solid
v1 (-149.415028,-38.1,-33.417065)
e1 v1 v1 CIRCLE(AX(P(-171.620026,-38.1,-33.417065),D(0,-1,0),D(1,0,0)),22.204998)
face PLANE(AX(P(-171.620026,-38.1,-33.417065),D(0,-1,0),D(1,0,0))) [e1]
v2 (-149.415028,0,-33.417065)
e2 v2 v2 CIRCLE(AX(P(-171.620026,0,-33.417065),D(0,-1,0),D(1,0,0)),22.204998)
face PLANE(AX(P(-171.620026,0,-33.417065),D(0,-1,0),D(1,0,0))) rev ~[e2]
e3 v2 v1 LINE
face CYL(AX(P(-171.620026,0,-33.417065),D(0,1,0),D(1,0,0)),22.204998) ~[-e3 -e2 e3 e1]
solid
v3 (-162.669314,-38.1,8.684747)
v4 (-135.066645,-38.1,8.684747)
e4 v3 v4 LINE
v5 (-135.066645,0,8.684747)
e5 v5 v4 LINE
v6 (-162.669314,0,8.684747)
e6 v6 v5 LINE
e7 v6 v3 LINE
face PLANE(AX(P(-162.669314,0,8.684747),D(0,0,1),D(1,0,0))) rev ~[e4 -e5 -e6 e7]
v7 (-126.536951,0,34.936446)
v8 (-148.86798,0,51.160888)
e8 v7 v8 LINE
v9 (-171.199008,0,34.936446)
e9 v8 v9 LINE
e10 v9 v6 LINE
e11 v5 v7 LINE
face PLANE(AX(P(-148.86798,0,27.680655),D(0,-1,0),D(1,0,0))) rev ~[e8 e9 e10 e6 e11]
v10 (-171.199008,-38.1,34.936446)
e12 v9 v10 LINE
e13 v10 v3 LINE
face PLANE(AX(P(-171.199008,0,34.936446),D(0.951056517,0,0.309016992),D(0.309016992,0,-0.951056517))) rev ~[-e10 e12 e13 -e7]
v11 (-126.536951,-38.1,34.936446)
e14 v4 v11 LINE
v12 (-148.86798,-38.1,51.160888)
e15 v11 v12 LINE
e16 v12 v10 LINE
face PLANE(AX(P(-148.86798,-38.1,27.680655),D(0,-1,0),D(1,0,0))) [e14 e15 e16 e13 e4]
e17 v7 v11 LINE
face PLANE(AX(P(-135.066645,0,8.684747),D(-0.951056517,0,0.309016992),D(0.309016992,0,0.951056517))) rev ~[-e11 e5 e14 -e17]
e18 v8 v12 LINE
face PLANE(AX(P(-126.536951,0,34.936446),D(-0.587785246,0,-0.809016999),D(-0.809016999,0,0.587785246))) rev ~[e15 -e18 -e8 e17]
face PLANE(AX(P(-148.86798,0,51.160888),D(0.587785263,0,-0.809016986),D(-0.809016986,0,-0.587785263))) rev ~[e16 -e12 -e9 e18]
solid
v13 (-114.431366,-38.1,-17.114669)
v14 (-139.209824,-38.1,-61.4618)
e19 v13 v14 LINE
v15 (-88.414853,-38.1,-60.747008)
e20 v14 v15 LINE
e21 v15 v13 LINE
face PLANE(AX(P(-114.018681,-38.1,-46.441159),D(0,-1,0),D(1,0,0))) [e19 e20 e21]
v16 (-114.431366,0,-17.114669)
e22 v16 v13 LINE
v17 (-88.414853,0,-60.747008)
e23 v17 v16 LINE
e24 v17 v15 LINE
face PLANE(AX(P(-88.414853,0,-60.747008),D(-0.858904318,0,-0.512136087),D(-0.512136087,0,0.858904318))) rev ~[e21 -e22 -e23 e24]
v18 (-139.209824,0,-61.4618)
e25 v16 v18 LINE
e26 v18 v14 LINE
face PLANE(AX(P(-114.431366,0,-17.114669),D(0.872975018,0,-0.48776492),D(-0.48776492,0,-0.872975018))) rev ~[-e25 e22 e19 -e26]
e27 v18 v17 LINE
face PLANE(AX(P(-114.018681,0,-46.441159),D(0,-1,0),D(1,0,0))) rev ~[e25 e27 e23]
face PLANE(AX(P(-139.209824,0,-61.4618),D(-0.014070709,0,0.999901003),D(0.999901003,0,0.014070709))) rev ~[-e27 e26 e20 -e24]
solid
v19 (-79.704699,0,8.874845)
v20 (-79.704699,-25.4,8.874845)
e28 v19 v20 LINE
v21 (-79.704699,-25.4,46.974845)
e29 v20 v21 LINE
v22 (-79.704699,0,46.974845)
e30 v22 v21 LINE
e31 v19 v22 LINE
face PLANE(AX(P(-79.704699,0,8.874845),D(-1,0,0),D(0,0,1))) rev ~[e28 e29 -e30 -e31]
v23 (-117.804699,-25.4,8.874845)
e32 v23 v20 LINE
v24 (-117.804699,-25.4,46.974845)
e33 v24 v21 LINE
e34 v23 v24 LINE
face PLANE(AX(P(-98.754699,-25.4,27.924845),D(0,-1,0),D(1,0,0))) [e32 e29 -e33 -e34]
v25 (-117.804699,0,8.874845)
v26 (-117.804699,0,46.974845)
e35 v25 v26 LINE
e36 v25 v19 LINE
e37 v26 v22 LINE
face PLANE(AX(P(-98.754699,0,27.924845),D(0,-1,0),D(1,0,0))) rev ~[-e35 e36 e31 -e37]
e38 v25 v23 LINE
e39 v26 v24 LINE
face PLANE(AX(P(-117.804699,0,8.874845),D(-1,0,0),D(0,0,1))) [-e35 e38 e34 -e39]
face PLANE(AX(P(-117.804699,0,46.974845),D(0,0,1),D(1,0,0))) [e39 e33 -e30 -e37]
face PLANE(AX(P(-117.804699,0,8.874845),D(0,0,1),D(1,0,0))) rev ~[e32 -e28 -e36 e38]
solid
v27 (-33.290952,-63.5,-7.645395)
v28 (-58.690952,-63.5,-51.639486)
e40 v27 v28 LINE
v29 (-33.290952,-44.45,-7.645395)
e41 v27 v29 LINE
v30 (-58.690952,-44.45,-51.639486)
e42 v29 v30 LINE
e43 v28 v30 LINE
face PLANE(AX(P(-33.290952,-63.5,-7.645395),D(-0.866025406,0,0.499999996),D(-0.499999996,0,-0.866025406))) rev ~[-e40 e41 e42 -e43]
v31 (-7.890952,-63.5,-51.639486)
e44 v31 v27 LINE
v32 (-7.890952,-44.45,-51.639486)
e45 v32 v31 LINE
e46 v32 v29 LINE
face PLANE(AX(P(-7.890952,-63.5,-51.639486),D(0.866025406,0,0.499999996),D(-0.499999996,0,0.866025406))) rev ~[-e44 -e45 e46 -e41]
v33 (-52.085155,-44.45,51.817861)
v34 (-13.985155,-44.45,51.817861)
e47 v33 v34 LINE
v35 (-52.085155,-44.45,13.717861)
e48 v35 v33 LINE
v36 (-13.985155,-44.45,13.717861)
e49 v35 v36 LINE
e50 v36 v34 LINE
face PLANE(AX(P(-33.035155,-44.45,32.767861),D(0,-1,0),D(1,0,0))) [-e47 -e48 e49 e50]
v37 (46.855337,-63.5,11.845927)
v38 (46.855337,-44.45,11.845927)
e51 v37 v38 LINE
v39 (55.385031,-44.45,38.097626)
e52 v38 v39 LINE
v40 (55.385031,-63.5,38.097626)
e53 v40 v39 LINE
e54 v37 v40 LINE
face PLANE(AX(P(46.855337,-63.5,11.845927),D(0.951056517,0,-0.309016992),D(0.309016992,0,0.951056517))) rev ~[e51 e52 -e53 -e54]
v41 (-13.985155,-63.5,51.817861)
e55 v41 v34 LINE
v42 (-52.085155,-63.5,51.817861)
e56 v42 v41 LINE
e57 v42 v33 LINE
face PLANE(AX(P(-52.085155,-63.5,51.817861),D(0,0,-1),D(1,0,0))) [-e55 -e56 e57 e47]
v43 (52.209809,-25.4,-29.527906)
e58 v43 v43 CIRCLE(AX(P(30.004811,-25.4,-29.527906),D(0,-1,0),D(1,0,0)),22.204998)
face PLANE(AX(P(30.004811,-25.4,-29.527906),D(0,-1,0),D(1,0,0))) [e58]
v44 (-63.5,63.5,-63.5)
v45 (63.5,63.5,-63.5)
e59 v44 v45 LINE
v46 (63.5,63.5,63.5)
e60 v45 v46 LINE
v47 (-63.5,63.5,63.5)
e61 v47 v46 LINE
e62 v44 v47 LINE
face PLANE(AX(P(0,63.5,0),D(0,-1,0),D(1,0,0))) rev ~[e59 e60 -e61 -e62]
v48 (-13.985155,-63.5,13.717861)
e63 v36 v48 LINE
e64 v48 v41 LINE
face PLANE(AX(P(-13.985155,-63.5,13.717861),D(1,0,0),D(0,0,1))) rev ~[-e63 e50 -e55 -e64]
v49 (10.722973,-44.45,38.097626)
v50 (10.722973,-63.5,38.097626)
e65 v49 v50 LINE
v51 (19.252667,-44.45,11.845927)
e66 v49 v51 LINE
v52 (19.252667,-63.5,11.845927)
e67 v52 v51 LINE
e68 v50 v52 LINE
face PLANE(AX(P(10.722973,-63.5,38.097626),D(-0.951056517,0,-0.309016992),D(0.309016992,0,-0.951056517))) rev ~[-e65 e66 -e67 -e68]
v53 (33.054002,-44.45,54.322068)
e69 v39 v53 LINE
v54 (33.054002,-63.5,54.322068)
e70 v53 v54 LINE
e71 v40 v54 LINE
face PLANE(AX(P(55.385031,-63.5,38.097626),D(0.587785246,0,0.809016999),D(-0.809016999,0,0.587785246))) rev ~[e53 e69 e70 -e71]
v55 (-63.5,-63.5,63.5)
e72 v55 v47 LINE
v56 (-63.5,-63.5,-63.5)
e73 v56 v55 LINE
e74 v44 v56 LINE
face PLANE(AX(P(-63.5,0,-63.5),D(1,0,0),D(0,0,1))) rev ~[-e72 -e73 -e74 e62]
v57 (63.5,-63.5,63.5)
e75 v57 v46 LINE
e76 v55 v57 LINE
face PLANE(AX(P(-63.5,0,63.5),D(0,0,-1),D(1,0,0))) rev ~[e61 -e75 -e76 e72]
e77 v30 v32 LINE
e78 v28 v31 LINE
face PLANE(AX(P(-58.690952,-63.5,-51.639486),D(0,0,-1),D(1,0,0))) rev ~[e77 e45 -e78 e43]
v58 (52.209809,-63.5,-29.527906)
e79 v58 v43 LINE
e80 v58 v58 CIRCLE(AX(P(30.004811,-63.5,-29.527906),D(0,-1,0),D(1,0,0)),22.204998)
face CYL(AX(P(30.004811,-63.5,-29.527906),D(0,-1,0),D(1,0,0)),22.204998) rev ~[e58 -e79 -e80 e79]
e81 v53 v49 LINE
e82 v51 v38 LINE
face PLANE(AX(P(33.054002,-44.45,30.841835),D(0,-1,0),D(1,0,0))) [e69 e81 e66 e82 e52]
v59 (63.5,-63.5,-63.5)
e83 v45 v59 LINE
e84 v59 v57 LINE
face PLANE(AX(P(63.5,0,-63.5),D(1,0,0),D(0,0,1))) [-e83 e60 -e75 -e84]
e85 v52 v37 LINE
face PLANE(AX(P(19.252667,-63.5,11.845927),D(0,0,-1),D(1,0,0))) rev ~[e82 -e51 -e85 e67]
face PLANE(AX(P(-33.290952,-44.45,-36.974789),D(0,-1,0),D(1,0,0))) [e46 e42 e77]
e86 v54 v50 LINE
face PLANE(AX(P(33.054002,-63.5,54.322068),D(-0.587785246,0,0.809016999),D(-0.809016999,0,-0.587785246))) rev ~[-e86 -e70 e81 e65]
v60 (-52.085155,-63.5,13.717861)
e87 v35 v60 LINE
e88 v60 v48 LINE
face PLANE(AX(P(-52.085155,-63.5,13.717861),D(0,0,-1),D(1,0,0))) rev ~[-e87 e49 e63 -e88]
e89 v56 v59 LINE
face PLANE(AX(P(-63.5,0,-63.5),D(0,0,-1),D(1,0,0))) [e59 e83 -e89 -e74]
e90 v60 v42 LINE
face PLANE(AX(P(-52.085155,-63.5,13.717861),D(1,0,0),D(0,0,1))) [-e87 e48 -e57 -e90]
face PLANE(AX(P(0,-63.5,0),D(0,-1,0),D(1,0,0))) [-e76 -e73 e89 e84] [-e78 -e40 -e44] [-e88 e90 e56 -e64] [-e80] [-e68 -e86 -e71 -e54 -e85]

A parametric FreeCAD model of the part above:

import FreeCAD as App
import Part
import Sketcher
from FreeCAD import Vector
Q = App.Units.Quantity

doc = App.newDocument("Part")
params = doc.addObject("Spreadsheet::Sheet", "Params")
for row, (alias, value) in enumerate([
    ("sketch1_width", "5 in"),
    ("pad1_length", "5 in"),
    ("sketch2_width", "1.5 in"),
    ("pocket1_length", "1.5 in"),
    ("pocket2_length", "1.5 in"),
    ("sketch4_width", "2 in"),
    ("sketch4_length", "2 in"),
    ("pocket3_length", "1.5 in"),
    ("pocket4_length", "1.5 in"),
    ("sketch6_width", "1.5 in"),
    ("pad2_length", "1 in"),
    ("sketch7_length", "2 in"),
    ("pad3_length", "1.5 in"),
    ("pad4_length", "1.5 in"),
    ("pad5_length", "1.5 in"),
], start=1):
    params.set(f"A{row}", alias)
    params.set(f"B{row}", "=" + value)
    params.setAlias(f"B{row}", alias)

body = doc.addObject("PartDesign::Body", "Body")

# Sketch on XZ plane
sketch1 = body.newObject("Sketcher::SketchObject", "Sketch")
sketch1.AttachmentSupport = (doc.getObject("XZ_Plane"), [""])
sketch1.MapMode = "FlatFace"
sketch1.addGeometry(Part.LineSegment(Vector(-64, 64, 0), Vector(-64, -64, 0)), False)
sketch1.addGeometry(Part.LineSegment(Vector(-64, -64, 0), Vector(64, -64, 0)), False)
sketch1.addGeometry(Part.LineSegment(Vector(64, -64, 0), Vector(64, 64, 0)), False)
sketch1.addGeometry(Part.LineSegment(Vector(64, 64, 0), Vector(-64, 64, 0)), False)
sketch1.addConstraint(Sketcher.Constraint("Coincident", 0, 2, 1, 1))
sketch1.addConstraint(Sketcher.Constraint("Coincident", 1, 2, 2, 1))
sketch1.addConstraint(Sketcher.Constraint("Coincident", 2, 2, 3, 1))
sketch1.addConstraint(Sketcher.Constraint("Coincident", 3, 2, 0, 1))
sketch1.addConstraint(Sketcher.Constraint("Vertical", 0))
sketch1.addConstraint(Sketcher.Constraint("Horizontal", 1))
sketch1.addConstraint(Sketcher.Constraint("Vertical", 2))
sketch1.addConstraint(Sketcher.Constraint("Horizontal", 3))
sketch1.addConstraint(Sketcher.Constraint("Symmetric", 0, 2, 2, 2, -1, 1))
sketch1.addConstraint(Sketcher.Constraint("Equal", 3, 0))
sketch1.addConstraint(Sketcher.Constraint("DistanceX", 1, 1, 1, 2, Q("5 in")))
sketch1.setExpression("Constraints[10]", "Params.sketch1_width")
pad1 = body.newObject("PartDesign::Pad", "Pad")
pad1.Profile = sketch1
pad1.setExpression("Length", "Params.pad1_length")
pad1.Midplane = True

# Sketch on XZ plane
sketch2 = body.newObject("Sketcher::SketchObject", "Sketch001")
sketch2.AttachmentSupport = (doc.getObject("XZ_Plane"), [""])
sketch2.MapMode = "FlatFace"
sketch2.AttachmentOffset = App.Placement(Vector(0, 0, 2.5 * 25.4), App.Rotation())
sketch2.addGeometry(Part.LineSegment(Vector(-52, 52, 0), Vector(-52, 14, 0)), False)
sketch2.addGeometry(Part.LineSegment(Vector(-52, 14, 0), Vector(-14, 14, 0)), False)
sketch2.addGeometry(Part.LineSegment(Vector(-14, 14, 0), Vector(-14, 52, 0)), False)
sketch2.addGeometry(Part.LineSegment(Vector(-14, 52, 0), Vector(-52, 52, 0)), False)
sketch2.addConstraint(Sketcher.Constraint("Coincident", 0, 2, 1, 1))
sketch2.addConstraint(Sketcher.Constraint("Coincident", 1, 2, 2, 1))
sketch2.addConstraint(Sketcher.Constraint("Coincident", 2, 2, 3, 1))
sketch2.addConstraint(Sketcher.Constraint("Coincident", 3, 2, 0, 1))
sketch2.addConstraint(Sketcher.Constraint("Vertical", 0))
sketch2.addConstraint(Sketcher.Constraint("Horizontal", 1))
sketch2.addConstraint(Sketcher.Constraint("Vertical", 2))
sketch2.addConstraint(Sketcher.Constraint("Horizontal", 3))
sketch2.addConstraint(Sketcher.Constraint("Equal", 3, 0))
sketch2.addConstraint(Sketcher.Constraint("DistanceX", 1, 1, 1, 2, Q("1.5 in")))
sketch2.addConstraint(Sketcher.Constraint("DistanceY", -1, 1, 0, 2, Q("13.717861 mm")))
sketch2.addConstraint(Sketcher.Constraint("DistanceX", 0, 2, -1, 1, Q("52.085155 mm")))
sketch2.setExpression("Constraints[9]", "Params.sketch2_width")
pocket1 = body.newObject("PartDesign::Pocket", "Pocket")
pocket1.Profile = sketch2
pocket1.setExpression("Length", "Params.pocket1_length")
pocket1.Midplane = True

# Sketch on XZ plane
sketch3 = body.newObject("Sketcher::SketchObject", "Sketch002")
sketch3.AttachmentSupport = (doc.getObject("XZ_Plane"), [""])
sketch3.MapMode = "FlatFace"
sketch3.AttachmentOffset = App.Placement(Vector(0, 0, 2.5 * 25.4), App.Rotation())
sketch3.addGeometry(Part.LineSegment(Vector(55, 38, 0), Vector(33, 54, 0)), False)
sketch3.addGeometry(Part.LineSegment(Vector(33, 54, 0), Vector(11, 38, 0)), False)
sketch3.addGeometry(Part.LineSegment(Vector(11, 38, 0), Vector(19, 12, 0)), False)
sketch3.addGeometry(Part.LineSegment(Vector(19, 12, 0), Vector(47, 12, 0)), False)
sketch3.addGeometry(Part.LineSegment(Vector(47, 12, 0), Vector(55, 38, 0)), False)
sketch3.addConstraint(Sketcher.Constraint("Coincident", 0, 2, 1, 1))
sketch3.addConstraint(Sketcher.Constraint("Coincident", 1, 2, 2, 1))
sketch3.addConstraint(Sketcher.Constraint("Coincident", 2, 2, 3, 1))
sketch3.addConstraint(Sketcher.Constraint("Coincident", 3, 2, 4, 1))
sketch3.addConstraint(Sketcher.Constraint("Coincident", 4, 2, 0, 1))
sketch3.addConstraint(Sketcher.Constraint("Horizontal", 3))
sketch3.addConstraint(Sketcher.Constraint("Horizontal", 1, 2, 4, 2))
sketch3.addConstraint(Sketcher.Constraint("Equal", 0, 1))
sketch3.addConstraint(Sketcher.Constraint("Equal", 1, 2))
sketch3.addConstraint(Sketcher.Constraint("Equal", 2, 4))
sketch3.addConstraint(Sketcher.Constraint("Angle", 0, Q("144 deg")))
sketch3.addConstraint(Sketcher.Constraint("Angle", 2, Q("-72 deg")))
sketch3.addConstraint(Sketcher.Constraint("DistanceX", 3, 1, 3, 2, Q("27.60267 mm")))
sketch3.addConstraint(Sketcher.Constraint("DistanceX", -1, 1, 0, 2, Q("33.054002 mm")))
sketch3.addConstraint(Sketcher.Constraint("DistanceY", -1, 1, 0, 2, Q("54.322068 mm")))
pocket2 = body.newObject("PartDesign::Pocket", "Pocket001")
pocket2.Profile = sketch3
pocket2.setExpression("Length", "Params.pocket2_length")
pocket2.Midplane = True

# Sketch on XZ plane
sketch4 = body.newObject("Sketcher::SketchObject", "Sketch003")
sketch4.AttachmentSupport = (doc.getObject("XZ_Plane"), [""])
sketch4.MapMode = "FlatFace"
sketch4.AttachmentOffset = App.Placement(Vector(0, 0, 2.5 * 25.4), App.Rotation())
sketch4.addGeometry(Part.LineSegment(Vector(-59, -52, 0), Vector(-8, -52, 0)), False)
sketch4.addGeometry(Part.LineSegment(Vector(-8, -52, 0), Vector(-33, -8, 0)), False)
sketch4.addGeometry(Part.LineSegment(Vector(-33, -8, 0), Vector(-59, -52, 0)), False)
sketch4.addConstraint(Sketcher.Constraint("Coincident", 0, 2, 1, 1))
sketch4.addConstraint(Sketcher.Constraint("Coincident", 1, 2, 2, 1))
sketch4.addConstraint(Sketcher.Constraint("Coincident", 2, 2, 0, 1))
sketch4.addConstraint(Sketcher.Constraint("Horizontal", 0))
sketch4.addConstraint(Sketcher.Constraint("Equal", 1, 2))
sketch4.addConstraint(Sketcher.Constraint("DistanceX", 0, 1, 0, 2, Q("2 in")))
sketch4.addConstraint(Sketcher.Constraint("Distance", 1, Q("2 in")))
sketch4.addConstraint(Sketcher.Constraint("DistanceY", 1, 2, -1, 1, Q("0.3009998 in")))
sketch4.addConstraint(Sketcher.Constraint("DistanceX", 1, 2, -1, 1, Q("33.290952 mm")))
sketch4.setExpression("Constraints[5]", "Params.sketch4_width")
sketch4.setExpression("Constraints[6]", "Params.sketch4_length")
pocket3 = body.newObject("PartDesign::Pocket", "Pocket002")
pocket3.Profile = sketch4
pocket3.setExpression("Length", "Params.pocket3_length")
pocket3.Midplane = True

# Sketch on XZ plane
sketch5 = body.newObject("Sketcher::SketchObject", "Sketch004")
sketch5.AttachmentSupport = (doc.getObject("XZ_Plane"), [""])
sketch5.MapMode = "FlatFace"
sketch5.AttachmentOffset = App.Placement(Vector(0, 0, 2.5 * 25.4), App.Rotation())
sketch5.addGeometry(Part.Circle(Vector(30, -30, 0), Vector(0, 0, 1), 22), False)
sketch5.addConstraint(Sketcher.Constraint("Diameter", 0, Q("44.409996 mm")))
sketch5.addConstraint(Sketcher.Constraint("DistanceX", -1, 1, 0, 3, Q("30.004811 mm")))
sketch5.addConstraint(Sketcher.Constraint("DistanceY", 0, 3, -1, 1, Q("29.527906 mm")))
pocket4 = body.newObject("PartDesign::Pocket", "Pocket003")
pocket4.Profile = sketch5
pocket4.setExpression("Length", "Params.pocket4_length")
body2 = doc.addObject("PartDesign::Body", "Body001")

# Sketch on XZ plane
sketch6 = body2.newObject("Sketcher::SketchObject", "Sketch005")
sketch6.AttachmentSupport = (doc.getObject("XZ_Plane001"), [""])
sketch6.MapMode = "FlatFace"
sketch6.addGeometry(Part.LineSegment(Vector(-118, 47, 0), Vector(-118, 9, 0)), False)
sketch6.addGeometry(Part.LineSegment(Vector(-118, 9, 0), Vector(-80, 9, 0)), False)
sketch6.addGeometry(Part.LineSegment(Vector(-80, 9, 0), Vector(-80, 47, 0)), False)
sketch6.addGeometry(Part.LineSegment(Vector(-80, 47, 0), Vector(-118, 47, 0)), False)
sketch6.addConstraint(Sketcher.Constraint("Coincident", 0, 2, 1, 1))
sketch6.addConstraint(Sketcher.Constraint("Coincident", 1, 2, 2, 1))
sketch6.addConstraint(Sketcher.Constraint("Coincident", 2, 2, 3, 1))
sketch6.addConstraint(Sketcher.Constraint("Coincident", 3, 2, 0, 1))
sketch6.addConstraint(Sketcher.Constraint("Vertical", 0))
sketch6.addConstraint(Sketcher.Constraint("Horizontal", 1))
sketch6.addConstraint(Sketcher.Constraint("Vertical", 2))
sketch6.addConstraint(Sketcher.Constraint("Horizontal", 3))
sketch6.addConstraint(Sketcher.Constraint("Equal", 3, 0))
sketch6.addConstraint(Sketcher.Constraint("DistanceX", 1, 1, 1, 2, Q("1.5 in")))
sketch6.addConstraint(Sketcher.Constraint("DistanceX", 0, 2, -1, 1, Q("117.804699 mm")))
sketch6.addConstraint(Sketcher.Constraint("DistanceY", -1, 1, 0, 2, Q("8.874845 mm")))
sketch6.setExpression("Constraints[9]", "Params.sketch6_width")
pad2 = body2.newObject("PartDesign::Pad", "Pad001")
pad2.Profile = sketch6
pad2.setExpression("Length", "Params.pad2_length")
body3 = doc.addObject("PartDesign::Body", "Body002")

# Sketch on XZ plane
sketch7 = body3.newObject("Sketcher::SketchObject", "Sketch006")
sketch7.AttachmentSupport = (doc.getObject("XZ_Plane002"), [""])
sketch7.MapMode = "FlatFace"
sketch7.addGeometry(Part.LineSegment(Vector(-88, -61, 0), Vector(-114, -17, 0)), False)
sketch7.addGeometry(Part.LineSegment(Vector(-114, -17, 0), Vector(-139, -61, 0)), False)
sketch7.addGeometry(Part.LineSegment(Vector(-139, -61, 0), Vector(-88, -61, 0)), False)
sketch7.addConstraint(Sketcher.Constraint("Coincident", 0, 2, 1, 1))
sketch7.addConstraint(Sketcher.Constraint("Coincident", 1, 2, 2, 1))
sketch7.addConstraint(Sketcher.Constraint("Coincident", 2, 2, 0, 1))
sketch7.addConstraint(Sketcher.Constraint("Equal", 0, 1))
sketch7.addConstraint(Sketcher.Constraint("Equal", 1, 2))
sketch7.addConstraint(Sketcher.Constraint("Distance", 0, Q("2 in")))
sketch7.addConstraint(Sketcher.Constraint("DistanceY", 1, 2, -1, 1, Q("61.4618 mm")))
sketch7.addConstraint(Sketcher.Constraint("DistanceY", 0, 2, -1, 1, Q("17.114669 mm")))
sketch7.addConstraint(Sketcher.Constraint("DistanceX", 0, 2, -1, 1, Q("114.431366 mm")))
sketch7.setExpression("Constraints[5]", "Params.sketch7_length")
pad3 = body3.newObject("PartDesign::Pad", "Pad002")
pad3.Profile = sketch7
pad3.setExpression("Length", "Params.pad3_length")
body4 = doc.addObject("PartDesign::Body", "Body003")

# Sketch on XZ plane
sketch8 = body4.newObject("Sketcher::SketchObject", "Sketch007")
sketch8.AttachmentSupport = (doc.getObject("XZ_Plane003"), [""])
sketch8.MapMode = "FlatFace"
sketch8.addGeometry(Part.LineSegment(Vector(-135, 9, 0), Vector(-127, 35, 0)), False)
sketch8.addGeometry(Part.LineSegment(Vector(-127, 35, 0), Vector(-149, 51, 0)), False)
sketch8.addGeometry(Part.LineSegment(Vector(-149, 51, 0), Vector(-171, 35, 0)), False)
sketch8.addGeometry(Part.LineSegment(Vector(-171, 35, 0), Vector(-163, 9, 0)), False)
sketch8.addGeometry(Part.LineSegment(Vector(-163, 9, 0), Vector(-135, 9, 0)), False)
sketch8.addConstraint(Sketcher.Constraint("Coincident", 0, 2, 1, 1))
sketch8.addConstraint(Sketcher.Constraint("Coincident", 1, 2, 2, 1))
sketch8.addConstraint(Sketcher.Constraint("Coincident", 2, 2, 3, 1))
sketch8.addConstraint(Sketcher.Constraint("Coincident", 3, 2, 4, 1))
sketch8.addConstraint(Sketcher.Constraint("Coincident", 4, 2, 0, 1))
sketch8.addConstraint(Sketcher.Constraint("Horizontal", 4))
sketch8.addConstraint(Sketcher.Constraint("Horizontal", 0, 2, 2, 2))
sketch8.addConstraint(Sketcher.Constraint("Equal", 0, 1))
sketch8.addConstraint(Sketcher.Constraint("Equal", 1, 2))
sketch8.addConstraint(Sketcher.Constraint("Equal", 2, 3))
sketch8.addConstraint(Sketcher.Constraint("Angle", 0, Q("72 deg")))
sketch8.addConstraint(Sketcher.Constraint("Angle", 1, Q("144 deg")))
sketch8.addConstraint(Sketcher.Constraint("DistanceX", 4, 1, 4, 2, Q("27.602669 mm")))
sketch8.addConstraint(Sketcher.Constraint("DistanceX", 0, 2, -1, 1, Q("126.536951 mm")))
sketch8.addConstraint(Sketcher.Constraint("DistanceY", -1, 1, 0, 2, Q("34.936446 mm")))
pad4 = body4.newObject("PartDesign::Pad", "Pad003")
pad4.Profile = sketch8
pad4.setExpression("Length", "Params.pad4_length")
body5 = doc.addObject("PartDesign::Body", "Body004")

# Sketch on XZ plane
sketch9 = body5.newObject("Sketcher::SketchObject", "Sketch008")
sketch9.AttachmentSupport = (doc.getObject("XZ_Plane004"), [""])
sketch9.MapMode = "FlatFace"
sketch9.addGeometry(Part.Circle(Vector(-172, -33, 0), Vector(0, 0, 1), 22), False)
sketch9.addConstraint(Sketcher.Constraint("Diameter", 0, Q("44.409996 mm")))
sketch9.addConstraint(Sketcher.Constraint("DistanceX", 0, 3, -1, 1, Q("171.620026 mm")))
sketch9.addConstraint(Sketcher.Constraint("DistanceY", 0, 3, -1, 1, Q("33.417065 mm")))
pad5 = body5.newObject("PartDesign::Pad", "Pad004")
pad5.Profile = sketch9
pad5.setExpression("Length", "Params.pad5_length")

doc.recompute()
